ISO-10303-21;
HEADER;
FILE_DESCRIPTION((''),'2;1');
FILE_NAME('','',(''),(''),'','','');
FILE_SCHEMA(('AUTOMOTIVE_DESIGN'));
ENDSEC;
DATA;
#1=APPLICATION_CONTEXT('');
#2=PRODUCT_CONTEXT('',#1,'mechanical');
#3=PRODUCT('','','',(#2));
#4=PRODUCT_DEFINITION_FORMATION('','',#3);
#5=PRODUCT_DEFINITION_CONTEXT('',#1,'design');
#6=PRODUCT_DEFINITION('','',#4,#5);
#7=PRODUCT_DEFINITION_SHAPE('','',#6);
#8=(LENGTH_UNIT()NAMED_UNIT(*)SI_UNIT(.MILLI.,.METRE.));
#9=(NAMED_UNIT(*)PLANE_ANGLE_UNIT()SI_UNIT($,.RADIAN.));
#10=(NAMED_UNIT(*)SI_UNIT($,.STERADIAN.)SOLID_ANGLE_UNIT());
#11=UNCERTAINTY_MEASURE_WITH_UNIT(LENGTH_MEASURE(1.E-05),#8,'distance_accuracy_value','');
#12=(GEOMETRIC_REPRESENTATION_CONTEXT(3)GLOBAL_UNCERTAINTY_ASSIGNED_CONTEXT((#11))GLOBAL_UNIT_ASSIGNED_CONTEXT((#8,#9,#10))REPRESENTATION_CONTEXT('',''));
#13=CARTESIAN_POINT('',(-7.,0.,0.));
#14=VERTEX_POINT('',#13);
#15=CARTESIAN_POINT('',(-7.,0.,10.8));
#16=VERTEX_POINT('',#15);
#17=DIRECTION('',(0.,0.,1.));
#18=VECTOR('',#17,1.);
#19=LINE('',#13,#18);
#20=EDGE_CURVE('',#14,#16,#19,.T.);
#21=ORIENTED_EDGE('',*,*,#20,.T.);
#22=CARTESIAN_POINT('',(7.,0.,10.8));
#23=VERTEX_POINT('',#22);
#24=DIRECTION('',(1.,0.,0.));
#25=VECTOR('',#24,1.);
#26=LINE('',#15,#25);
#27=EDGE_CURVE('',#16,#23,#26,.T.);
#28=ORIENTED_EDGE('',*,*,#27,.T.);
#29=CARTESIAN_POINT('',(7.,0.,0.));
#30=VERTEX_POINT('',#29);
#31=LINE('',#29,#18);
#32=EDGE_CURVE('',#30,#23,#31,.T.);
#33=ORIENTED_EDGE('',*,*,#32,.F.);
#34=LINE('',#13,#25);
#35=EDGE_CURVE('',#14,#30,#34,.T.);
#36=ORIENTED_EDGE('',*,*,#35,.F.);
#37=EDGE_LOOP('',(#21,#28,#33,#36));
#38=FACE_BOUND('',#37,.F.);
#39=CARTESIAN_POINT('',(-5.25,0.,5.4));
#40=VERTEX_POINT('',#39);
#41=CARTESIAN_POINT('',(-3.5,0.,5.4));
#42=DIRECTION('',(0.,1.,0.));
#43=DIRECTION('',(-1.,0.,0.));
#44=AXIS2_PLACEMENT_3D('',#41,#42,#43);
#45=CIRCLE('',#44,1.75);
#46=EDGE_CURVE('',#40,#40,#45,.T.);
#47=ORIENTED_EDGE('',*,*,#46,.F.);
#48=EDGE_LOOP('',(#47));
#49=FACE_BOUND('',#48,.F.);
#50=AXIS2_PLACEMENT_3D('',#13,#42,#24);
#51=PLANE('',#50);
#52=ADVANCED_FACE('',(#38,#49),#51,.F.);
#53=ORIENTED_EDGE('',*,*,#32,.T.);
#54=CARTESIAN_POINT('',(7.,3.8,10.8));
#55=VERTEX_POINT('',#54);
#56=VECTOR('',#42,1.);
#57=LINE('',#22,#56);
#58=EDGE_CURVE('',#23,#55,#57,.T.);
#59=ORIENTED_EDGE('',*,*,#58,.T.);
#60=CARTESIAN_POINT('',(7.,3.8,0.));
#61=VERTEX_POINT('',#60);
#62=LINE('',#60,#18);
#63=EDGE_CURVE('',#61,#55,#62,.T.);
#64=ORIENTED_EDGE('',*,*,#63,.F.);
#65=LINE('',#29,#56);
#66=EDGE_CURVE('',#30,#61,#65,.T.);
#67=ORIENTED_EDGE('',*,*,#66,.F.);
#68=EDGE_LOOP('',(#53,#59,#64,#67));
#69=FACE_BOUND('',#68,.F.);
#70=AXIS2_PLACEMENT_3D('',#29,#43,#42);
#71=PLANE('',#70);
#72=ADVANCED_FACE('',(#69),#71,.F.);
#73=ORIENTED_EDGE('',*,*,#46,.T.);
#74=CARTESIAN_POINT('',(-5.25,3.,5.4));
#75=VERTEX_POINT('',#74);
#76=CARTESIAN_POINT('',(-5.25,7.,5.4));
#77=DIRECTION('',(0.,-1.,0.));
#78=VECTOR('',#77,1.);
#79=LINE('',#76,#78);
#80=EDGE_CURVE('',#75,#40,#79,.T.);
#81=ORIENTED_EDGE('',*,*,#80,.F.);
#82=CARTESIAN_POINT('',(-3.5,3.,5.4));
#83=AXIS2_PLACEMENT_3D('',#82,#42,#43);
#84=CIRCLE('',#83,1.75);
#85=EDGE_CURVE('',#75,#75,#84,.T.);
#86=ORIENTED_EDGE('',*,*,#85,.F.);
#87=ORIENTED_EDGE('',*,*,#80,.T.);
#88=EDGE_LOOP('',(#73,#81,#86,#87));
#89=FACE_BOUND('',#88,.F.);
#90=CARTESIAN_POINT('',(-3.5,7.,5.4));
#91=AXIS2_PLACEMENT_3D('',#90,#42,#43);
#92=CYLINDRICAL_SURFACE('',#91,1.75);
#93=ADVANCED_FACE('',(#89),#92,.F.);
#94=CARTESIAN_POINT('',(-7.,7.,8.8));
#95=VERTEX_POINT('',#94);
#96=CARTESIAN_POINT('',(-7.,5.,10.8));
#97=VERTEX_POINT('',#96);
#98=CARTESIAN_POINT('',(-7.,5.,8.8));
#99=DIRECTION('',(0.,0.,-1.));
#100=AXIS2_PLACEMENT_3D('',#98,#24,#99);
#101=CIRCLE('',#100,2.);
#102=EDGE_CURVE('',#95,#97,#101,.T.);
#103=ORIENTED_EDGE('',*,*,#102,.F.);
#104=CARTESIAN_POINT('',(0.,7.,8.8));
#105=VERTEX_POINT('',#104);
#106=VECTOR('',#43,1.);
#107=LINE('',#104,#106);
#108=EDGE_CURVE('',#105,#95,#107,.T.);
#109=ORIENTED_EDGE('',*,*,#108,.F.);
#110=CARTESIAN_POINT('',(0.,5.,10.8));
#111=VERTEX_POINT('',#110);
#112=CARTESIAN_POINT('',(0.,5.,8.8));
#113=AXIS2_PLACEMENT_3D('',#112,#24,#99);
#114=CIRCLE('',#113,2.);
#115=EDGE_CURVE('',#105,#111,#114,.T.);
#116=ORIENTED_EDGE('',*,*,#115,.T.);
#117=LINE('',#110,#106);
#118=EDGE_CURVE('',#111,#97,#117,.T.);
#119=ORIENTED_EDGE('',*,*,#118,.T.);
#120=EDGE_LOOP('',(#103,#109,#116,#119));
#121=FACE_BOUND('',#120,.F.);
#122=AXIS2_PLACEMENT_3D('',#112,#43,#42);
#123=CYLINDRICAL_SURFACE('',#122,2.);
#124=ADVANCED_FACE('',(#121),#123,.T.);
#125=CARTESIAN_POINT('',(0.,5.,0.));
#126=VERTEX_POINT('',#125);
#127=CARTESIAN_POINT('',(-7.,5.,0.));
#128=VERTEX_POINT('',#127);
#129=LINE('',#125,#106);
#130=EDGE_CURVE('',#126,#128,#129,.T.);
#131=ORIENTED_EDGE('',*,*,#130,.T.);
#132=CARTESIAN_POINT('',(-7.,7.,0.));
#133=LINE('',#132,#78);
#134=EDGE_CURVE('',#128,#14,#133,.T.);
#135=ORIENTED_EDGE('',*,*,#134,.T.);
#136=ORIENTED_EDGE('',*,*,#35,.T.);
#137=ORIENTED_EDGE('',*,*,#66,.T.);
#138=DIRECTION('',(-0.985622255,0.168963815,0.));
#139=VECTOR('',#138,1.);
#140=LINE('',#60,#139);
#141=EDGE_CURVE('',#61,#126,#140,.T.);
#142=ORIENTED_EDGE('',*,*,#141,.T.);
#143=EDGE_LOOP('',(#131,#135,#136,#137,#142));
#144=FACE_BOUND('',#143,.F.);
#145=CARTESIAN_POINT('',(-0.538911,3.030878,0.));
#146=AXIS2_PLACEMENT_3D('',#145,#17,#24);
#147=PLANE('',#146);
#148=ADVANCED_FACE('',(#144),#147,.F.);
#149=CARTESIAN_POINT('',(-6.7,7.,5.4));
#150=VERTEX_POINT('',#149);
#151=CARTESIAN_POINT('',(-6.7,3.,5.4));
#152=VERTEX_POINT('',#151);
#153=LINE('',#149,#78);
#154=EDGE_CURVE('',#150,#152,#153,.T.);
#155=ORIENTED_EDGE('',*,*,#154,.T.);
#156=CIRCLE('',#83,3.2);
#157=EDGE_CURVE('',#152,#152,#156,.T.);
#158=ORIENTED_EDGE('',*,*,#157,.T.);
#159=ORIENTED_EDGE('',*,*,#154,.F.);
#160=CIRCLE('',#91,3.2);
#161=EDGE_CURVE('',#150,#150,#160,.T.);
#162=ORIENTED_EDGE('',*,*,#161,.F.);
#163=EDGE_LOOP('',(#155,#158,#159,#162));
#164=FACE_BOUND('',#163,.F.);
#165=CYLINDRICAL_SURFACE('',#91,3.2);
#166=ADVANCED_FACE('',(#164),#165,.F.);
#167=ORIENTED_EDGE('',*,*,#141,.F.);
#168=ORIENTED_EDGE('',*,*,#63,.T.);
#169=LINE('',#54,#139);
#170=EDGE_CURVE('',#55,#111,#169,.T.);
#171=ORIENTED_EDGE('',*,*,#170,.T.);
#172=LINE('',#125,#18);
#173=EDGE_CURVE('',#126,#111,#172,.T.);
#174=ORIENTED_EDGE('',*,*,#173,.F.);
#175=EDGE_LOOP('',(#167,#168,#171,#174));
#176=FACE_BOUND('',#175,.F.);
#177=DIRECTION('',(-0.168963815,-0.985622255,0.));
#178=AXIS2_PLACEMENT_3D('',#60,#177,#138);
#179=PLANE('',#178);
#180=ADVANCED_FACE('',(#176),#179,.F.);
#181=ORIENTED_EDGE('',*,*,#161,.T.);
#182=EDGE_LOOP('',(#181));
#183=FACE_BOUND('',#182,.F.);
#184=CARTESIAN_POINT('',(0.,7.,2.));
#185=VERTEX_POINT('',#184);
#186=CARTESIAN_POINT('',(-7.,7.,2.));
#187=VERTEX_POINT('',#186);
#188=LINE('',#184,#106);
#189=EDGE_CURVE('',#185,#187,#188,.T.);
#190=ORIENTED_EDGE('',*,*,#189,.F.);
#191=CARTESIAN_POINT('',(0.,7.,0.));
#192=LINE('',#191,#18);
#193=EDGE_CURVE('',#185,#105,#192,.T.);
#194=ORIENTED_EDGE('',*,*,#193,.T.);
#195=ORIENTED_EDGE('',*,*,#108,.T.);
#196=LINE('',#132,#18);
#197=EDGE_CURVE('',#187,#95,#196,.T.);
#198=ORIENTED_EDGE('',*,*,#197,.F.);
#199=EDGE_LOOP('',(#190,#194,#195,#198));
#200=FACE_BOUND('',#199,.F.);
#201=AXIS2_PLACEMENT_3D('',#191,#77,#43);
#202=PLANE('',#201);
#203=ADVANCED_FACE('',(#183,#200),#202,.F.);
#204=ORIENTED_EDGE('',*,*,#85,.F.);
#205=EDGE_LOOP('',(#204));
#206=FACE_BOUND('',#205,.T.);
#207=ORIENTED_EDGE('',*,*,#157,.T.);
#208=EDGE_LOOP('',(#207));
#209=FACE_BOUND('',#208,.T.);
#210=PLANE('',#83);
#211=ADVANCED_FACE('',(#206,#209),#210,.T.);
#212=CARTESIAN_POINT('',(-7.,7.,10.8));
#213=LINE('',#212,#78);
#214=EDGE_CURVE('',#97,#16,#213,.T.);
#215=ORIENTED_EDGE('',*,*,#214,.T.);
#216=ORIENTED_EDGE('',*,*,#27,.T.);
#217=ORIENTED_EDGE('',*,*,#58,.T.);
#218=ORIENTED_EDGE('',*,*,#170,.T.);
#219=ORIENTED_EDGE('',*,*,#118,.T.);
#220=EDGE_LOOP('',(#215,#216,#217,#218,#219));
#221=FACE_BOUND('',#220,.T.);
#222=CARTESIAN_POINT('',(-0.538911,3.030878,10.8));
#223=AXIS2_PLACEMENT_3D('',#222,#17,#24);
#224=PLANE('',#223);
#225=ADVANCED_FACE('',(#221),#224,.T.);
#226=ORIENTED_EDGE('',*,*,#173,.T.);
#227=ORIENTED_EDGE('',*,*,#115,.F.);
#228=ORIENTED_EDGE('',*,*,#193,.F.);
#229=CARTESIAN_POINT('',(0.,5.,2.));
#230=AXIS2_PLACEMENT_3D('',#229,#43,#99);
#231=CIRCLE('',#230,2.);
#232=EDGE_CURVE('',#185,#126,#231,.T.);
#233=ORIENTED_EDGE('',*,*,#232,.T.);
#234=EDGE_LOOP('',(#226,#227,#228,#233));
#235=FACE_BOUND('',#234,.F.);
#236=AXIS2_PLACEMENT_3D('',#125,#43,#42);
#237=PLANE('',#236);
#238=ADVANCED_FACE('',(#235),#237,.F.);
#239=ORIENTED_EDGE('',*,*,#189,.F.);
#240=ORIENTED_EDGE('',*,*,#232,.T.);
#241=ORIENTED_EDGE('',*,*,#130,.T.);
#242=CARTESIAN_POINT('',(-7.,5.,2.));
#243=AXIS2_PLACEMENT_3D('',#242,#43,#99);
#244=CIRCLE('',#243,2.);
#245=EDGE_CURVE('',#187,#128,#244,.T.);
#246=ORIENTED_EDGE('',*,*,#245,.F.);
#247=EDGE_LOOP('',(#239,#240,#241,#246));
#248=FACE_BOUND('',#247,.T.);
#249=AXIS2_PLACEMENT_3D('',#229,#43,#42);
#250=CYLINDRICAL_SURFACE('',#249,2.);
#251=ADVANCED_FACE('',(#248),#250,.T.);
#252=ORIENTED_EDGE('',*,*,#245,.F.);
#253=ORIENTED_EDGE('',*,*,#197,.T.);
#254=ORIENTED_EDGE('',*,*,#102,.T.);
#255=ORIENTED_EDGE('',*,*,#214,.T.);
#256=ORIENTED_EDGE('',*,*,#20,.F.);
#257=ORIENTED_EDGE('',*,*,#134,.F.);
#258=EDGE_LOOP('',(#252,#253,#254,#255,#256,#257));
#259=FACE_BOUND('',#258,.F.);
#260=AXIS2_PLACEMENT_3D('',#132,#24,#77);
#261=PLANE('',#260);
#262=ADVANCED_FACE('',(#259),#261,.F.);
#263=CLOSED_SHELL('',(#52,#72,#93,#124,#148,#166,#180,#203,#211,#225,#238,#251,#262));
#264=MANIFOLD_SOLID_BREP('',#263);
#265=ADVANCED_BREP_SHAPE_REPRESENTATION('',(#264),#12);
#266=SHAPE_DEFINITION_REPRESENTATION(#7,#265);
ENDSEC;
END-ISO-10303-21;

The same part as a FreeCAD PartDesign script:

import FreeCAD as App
import Part
import Sketcher

V = App.Vector


def edges_at(feature, points):
    """Names of the edges that pass closest to the given points."""
    edges = feature.Shape.Edges
    near = lambda p: min(range(len(edges)), key=lambda i: edges[i].distToShape(Part.Vertex(*p))[0])
    return sorted({f"Edge{near(p) + 1}" for p in points})


def add_polygon(sketch, points):
    """Adds a closed chain of lines whose ends are joined by coincident constraints."""
    first, n = sketch.GeometryCount, len(points)
    for a, b in zip(points, points[1:] + points[:1]):
        sketch.addGeometry(Part.LineSegment(App.Vector(*a, 0), App.Vector(*b, 0)), False)
    for i in range(n):
        sketch.addConstraint(Sketcher.Constraint("Coincident", first + i, 2, first + (i + 1) % n, 1))

doc = App.newDocument("Part")
params = doc.addObject("Spreadsheet::Sheet", "Params")
for row, (alias, value) in enumerate([
    ("sketch1_width", "14 mm"),
    ("sketch1_height", "2 mm"),
    ("sketch1_height2", "3.8 mm"),
    ("pad1_length", "10.8 mm"),
    ("sketch2_diameter", "3.5 mm"),
    ("sketch3_diameter", "6.4 mm"),
    ("pocket2_length", "4 mm"),
    ("fillet_radius", "2 mm"),
], start=1):
    params.set(f"A{row}", alias)
    params.set(f"B{row}", "=" + value)
    params.setAlias(f"B{row}", alias)

body = doc.addObject("PartDesign::Body", "Body")

# Sketch on XY plane
sketch1 = body.newObject("Sketcher::SketchObject", "Sketch")
sketch1.AttachmentSupport = (doc.getObject("XY_Plane"), [""])
sketch1.MapMode = "FlatFace"
add_polygon(sketch1, [(-7, 7), (-7, 0), (7, 0), (7, 3.8), (0, 5), (0, 7)])  # lines 0-5
sketch1.addConstraint([
    Sketcher.Constraint("Vertical", 0),
    Sketcher.Constraint("Horizontal", 1),
    Sketcher.Constraint("Vertical", 2),
    Sketcher.Constraint("Vertical", 4),
    Sketcher.Constraint("Horizontal", 5),
    Sketcher.Constraint("Symmetric", 0, 2, 1, 2, -1, 1),
    Sketcher.Constraint("PointOnObject", 3, 2, -2),
    Sketcher.Constraint("Equal", 5, 0),
    Sketcher.Constraint("DistanceX", 1, 1, 1, 2, 14.0),
    Sketcher.Constraint("DistanceY", 4, 1, 4, 2, 2.0),
    Sketcher.Constraint("DistanceY", 2, 1, 2, 2, 3.8),
])
sketch1.setExpression("Constraints[14]", "Params.sketch1_width")
sketch1.setExpression("Constraints[15]", "Params.sketch1_height")
sketch1.setExpression("Constraints[16]", "Params.sketch1_height2")
pad1 = body.newObject("PartDesign::Pad", "Pad")
pad1.Profile = sketch1
pad1.setExpression("Length", "Params.pad1_length")

# Sketch on XZ plane
sketch2 = body.newObject("Sketcher::SketchObject", "Sketch001")
sketch2.AttachmentSupport = (doc.getObject("XZ_Plane"), [""])
sketch2.MapMode = "FlatFace"
sketch2.AttachmentOffset = App.Placement(V(0, 0, -7), App.Rotation())
sketch2.addGeometry(Part.Circle(V(-3.5, 5.4, 0), V(0, 0, 1), 1.8), False)
sketch2.addConstraint([
    Sketcher.Constraint("Diameter", 0, 3.5),
    Sketcher.Constraint("DistanceX", 0, 3, -1, 1, 3.5),
    Sketcher.Constraint("DistanceY", -1, 1, 0, 3, 5.4),
])
sketch2.setExpression("Constraints[0]", "Params.sketch2_diameter")
pocket1 = body.newObject("PartDesign::Pocket", "Pocket")
pocket1.Profile = sketch2
pocket1.Type = "ThroughAll"
pocket1.Reversed = True

# Sketch on XZ plane
sketch3 = body.newObject("Sketcher::SketchObject", "Sketch002")
sketch3.AttachmentSupport = (doc.getObject("XZ_Plane"), [""])
sketch3.MapMode = "FlatFace"
sketch3.AttachmentOffset = App.Placement(V(0, 0, -7), App.Rotation())
sketch3.addGeometry(Part.Circle(V(-3.5, 5.4, 0), V(0, 0, 1), 3.2), False)
sketch3.addConstraint([
    Sketcher.Constraint("Diameter", 0, 6.4),
    Sketcher.Constraint("DistanceX", 0, 3, -1, 1, 3.5),
    Sketcher.Constraint("DistanceY", -1, 1, 0, 3, 5.4),
])
sketch3.setExpression("Constraints[0]", "Params.sketch3_diameter")
pocket2 = body.newObject("PartDesign::Pocket", "Pocket001")
pocket2.Profile = sketch3
pocket2.setExpression("Length", "Params.pocket2_length")
pocket2.Reversed = True
doc.recompute()

fillet = body.newObject("PartDesign::Fillet", "Fillet")
fillet.Base = (pocket2, edges_at(pocket2, [(-3.5, 7, 10.8), (-3.5, 7, 0)]))
fillet.setExpression("Radius", "Params.fillet_radius")

doc.recompute()
